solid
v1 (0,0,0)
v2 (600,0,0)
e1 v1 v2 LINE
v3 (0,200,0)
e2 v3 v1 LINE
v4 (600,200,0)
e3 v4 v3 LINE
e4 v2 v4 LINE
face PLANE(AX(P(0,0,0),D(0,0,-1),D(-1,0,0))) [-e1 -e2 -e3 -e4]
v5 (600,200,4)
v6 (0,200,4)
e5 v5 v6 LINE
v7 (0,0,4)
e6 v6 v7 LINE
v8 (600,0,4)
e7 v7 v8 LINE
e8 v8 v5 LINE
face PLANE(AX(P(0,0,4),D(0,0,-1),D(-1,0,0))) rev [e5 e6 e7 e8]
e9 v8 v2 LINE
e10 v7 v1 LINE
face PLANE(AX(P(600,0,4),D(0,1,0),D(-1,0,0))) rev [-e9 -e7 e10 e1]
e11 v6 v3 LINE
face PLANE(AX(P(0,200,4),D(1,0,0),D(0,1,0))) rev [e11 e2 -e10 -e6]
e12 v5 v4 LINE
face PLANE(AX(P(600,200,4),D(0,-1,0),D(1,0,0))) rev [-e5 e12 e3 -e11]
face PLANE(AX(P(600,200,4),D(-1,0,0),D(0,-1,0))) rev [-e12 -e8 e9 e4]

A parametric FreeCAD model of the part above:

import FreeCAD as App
import Part
import Sketcher
from FreeCAD import Vector


def add_polygon(sketch, points):
    """Adds a closed chain of lines whose ends are joined by coincident constraints."""
    first, n = sketch.GeometryCount, len(points)
    for a, b in zip(points, points[1:] + points[:1]):
        sketch.addGeometry(Part.LineSegment(App.Vector(*a, 0), App.Vector(*b, 0)), False)
    for i in range(n):
        sketch.addConstraint(Sketcher.Constraint("Coincident", first + i, 2, first + (i + 1) % n, 1))

doc = App.newDocument("Part")
body = doc.addObject("PartDesign::Body", "Body")

# Sketch on XY plane
sketch1 = doc.addObject("Sketcher::SketchObject", "Sketch")
body.addObject(sketch1)
sketch1.AttachmentSupport = (doc.XY_Plane, [""])
sketch1.MapMode = "FlatFace"
add_polygon(sketch1, [(0, 200), (0, 0), (600, 0), (600, 200)])  # lines 0-3
sketch1.addConstraint([
    Sketcher.Constraint("Vertical", 0),
    Sketcher.Constraint("Horizontal", 1),
    Sketcher.Constraint("Vertical", 2),
    Sketcher.Constraint("Horizontal", 3),
    Sketcher.Constraint("Coincident", 0, 2, -1, 1),
    Sketcher.Constraint("DistanceX", 1, 1, 1, 2, 600.0),
    Sketcher.Constraint("DistanceY", 0, 2, 0, 1, 200.0),
])
pad1 = doc.addObject("PartDesign::Pad", "Pad")
body.addObject(pad1)
pad1.Profile = sketch1
pad1.Length = 4

doc.recompute()
